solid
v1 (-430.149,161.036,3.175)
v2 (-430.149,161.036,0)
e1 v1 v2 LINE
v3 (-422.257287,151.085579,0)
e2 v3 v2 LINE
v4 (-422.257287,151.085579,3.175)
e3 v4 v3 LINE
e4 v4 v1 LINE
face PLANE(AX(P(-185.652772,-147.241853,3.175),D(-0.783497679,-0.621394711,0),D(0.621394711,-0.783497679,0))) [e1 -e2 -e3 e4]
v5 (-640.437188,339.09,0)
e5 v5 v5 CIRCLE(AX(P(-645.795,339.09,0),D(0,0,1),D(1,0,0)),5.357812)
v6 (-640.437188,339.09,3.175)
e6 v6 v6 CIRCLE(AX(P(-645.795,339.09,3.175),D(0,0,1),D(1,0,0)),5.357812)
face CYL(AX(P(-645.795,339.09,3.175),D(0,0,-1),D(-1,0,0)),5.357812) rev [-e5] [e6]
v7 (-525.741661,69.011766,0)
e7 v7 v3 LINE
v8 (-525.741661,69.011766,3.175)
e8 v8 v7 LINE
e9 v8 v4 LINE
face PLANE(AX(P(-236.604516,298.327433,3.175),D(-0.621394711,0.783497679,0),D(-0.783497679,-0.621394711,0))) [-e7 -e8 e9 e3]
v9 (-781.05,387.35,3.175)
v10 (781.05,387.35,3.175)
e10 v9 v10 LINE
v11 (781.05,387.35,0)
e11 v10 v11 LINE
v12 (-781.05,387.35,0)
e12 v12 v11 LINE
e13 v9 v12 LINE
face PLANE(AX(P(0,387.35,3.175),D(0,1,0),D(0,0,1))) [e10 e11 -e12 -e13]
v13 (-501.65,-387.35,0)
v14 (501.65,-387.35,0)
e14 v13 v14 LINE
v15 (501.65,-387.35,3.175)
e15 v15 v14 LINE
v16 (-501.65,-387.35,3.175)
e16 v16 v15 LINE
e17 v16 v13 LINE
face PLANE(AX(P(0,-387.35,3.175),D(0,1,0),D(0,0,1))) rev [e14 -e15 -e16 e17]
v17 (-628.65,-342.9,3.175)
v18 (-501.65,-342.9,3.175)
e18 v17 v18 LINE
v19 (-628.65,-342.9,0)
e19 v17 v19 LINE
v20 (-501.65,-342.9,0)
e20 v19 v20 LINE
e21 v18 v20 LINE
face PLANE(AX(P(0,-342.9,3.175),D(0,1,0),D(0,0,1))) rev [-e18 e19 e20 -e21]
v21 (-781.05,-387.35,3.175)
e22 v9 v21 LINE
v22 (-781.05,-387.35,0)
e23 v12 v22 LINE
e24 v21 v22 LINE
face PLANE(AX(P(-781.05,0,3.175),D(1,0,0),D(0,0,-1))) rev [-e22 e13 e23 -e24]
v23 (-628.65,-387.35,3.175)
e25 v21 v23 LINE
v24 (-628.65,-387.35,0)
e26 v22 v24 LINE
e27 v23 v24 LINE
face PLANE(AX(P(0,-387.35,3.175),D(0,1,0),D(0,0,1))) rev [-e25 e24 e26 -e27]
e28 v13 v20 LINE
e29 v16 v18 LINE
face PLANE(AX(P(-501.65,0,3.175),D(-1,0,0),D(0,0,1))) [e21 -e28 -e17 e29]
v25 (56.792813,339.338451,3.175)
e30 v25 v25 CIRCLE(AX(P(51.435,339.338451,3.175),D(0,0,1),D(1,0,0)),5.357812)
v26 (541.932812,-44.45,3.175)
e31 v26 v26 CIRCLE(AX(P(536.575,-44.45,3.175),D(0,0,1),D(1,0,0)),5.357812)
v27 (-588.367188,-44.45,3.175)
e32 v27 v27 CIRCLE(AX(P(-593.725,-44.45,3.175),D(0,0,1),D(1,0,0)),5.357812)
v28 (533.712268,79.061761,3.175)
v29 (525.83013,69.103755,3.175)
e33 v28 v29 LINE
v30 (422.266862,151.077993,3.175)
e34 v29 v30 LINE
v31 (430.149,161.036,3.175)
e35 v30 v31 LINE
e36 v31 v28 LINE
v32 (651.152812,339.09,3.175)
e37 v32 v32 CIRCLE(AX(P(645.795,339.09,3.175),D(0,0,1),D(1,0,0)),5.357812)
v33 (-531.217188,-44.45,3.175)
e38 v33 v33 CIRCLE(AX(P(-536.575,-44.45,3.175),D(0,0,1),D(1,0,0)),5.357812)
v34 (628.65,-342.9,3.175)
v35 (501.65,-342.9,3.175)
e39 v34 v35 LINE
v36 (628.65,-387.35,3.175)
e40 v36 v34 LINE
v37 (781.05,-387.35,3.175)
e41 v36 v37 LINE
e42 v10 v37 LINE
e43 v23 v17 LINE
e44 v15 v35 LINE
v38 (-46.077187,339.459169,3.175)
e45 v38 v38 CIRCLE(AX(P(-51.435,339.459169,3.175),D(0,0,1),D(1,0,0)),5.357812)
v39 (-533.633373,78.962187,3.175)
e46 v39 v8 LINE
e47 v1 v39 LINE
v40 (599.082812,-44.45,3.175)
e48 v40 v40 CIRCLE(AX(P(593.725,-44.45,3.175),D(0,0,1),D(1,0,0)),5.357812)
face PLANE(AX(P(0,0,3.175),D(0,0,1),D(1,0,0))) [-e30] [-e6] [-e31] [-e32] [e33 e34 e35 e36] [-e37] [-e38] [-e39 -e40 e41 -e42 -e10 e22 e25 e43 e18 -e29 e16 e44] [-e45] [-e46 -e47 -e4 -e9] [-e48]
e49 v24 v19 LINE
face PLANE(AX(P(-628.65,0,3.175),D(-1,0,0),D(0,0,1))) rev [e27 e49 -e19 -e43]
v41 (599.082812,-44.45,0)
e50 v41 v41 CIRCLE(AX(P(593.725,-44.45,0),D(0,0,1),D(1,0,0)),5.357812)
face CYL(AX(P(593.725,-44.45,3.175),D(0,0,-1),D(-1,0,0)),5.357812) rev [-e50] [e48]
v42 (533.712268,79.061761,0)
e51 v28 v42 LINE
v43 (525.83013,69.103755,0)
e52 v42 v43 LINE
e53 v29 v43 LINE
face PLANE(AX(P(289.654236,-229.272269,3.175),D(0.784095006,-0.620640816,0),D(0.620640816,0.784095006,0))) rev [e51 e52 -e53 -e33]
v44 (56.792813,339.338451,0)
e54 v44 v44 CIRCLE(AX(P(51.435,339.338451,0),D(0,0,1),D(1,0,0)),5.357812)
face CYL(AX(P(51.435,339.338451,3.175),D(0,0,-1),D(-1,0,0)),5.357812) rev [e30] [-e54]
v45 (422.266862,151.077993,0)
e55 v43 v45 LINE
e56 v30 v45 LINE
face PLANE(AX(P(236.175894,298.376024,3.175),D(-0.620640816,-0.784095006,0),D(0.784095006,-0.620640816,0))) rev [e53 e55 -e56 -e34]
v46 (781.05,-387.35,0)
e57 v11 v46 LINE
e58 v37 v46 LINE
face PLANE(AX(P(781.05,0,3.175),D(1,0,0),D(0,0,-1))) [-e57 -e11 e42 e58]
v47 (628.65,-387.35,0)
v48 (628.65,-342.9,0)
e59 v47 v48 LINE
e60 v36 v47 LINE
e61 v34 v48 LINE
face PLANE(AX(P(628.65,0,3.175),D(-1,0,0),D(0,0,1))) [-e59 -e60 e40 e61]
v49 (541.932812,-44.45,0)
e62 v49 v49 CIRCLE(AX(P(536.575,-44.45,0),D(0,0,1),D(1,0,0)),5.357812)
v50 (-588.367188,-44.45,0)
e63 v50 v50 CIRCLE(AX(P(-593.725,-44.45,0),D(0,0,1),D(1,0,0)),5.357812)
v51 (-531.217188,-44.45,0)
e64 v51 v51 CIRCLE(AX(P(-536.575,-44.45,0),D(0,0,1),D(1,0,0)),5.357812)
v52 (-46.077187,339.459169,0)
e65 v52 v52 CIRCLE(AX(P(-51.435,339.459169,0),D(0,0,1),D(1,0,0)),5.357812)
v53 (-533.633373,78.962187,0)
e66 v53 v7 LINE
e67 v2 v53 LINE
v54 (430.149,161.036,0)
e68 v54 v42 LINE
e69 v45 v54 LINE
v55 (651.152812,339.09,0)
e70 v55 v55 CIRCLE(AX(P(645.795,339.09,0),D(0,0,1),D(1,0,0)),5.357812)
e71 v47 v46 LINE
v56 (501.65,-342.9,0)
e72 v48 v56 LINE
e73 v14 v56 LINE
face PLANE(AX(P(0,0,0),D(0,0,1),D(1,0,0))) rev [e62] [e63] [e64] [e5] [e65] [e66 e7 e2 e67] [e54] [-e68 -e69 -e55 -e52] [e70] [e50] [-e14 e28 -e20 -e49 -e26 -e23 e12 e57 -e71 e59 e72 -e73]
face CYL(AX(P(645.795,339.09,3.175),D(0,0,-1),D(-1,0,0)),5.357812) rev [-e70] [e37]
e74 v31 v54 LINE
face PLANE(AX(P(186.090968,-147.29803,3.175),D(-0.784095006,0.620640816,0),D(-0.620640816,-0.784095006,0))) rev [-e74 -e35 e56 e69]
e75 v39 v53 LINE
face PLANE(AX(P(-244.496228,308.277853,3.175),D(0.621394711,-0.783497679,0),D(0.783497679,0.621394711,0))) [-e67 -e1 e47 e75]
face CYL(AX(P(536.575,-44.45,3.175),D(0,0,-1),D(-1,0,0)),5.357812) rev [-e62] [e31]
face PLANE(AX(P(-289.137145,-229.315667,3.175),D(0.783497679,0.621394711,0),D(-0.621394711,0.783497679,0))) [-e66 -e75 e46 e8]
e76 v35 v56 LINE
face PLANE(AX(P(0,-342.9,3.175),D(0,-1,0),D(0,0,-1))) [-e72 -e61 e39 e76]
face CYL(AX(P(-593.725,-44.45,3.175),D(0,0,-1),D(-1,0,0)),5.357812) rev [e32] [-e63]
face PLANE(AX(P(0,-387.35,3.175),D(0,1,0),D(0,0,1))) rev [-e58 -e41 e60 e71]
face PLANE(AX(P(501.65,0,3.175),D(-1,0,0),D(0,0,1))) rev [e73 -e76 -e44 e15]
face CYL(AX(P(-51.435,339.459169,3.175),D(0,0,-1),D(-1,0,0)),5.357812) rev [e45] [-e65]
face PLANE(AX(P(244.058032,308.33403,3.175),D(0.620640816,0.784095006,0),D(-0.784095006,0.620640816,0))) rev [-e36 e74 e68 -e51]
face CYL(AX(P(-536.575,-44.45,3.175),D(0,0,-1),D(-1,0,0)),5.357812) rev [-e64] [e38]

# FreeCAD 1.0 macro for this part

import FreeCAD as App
import Part
import Sketcher
from FreeCAD import Vector
Q = App.Units.Quantity

doc = App.newDocument("Part")
body = doc.addObject("PartDesign::Body", "Body")

sketch1 = body.newObject("Sketcher::SketchObject", "Sketch")
sketch1.AttachmentSupport = (doc.getObject("XY_Plane"), [""])
sketch1.MapMode = "FlatFace"
sketch1.addGeometry(Part.LineSegment(Vector(781, 387, 0), Vector(-781, 387, 0)), False)
sketch1.addGeometry(Part.LineSegment(Vector(-781, 387, 0), Vector(-781, -387, 0)), False)
sketch1.addGeometry(Part.LineSegment(Vector(-781, -387, 0), Vector(-629, -387, 0)), False)
sketch1.addGeometry(Part.LineSegment(Vector(-629, -387, 0), Vector(-629, -343, 0)), False)
sketch1.addGeometry(Part.LineSegment(Vector(-629, -343, 0), Vector(-502, -343, 0)), False)
sketch1.addGeometry(Part.LineSegment(Vector(-502, -343, 0), Vector(-502, -387, 0)), False)
sketch1.addGeometry(Part.LineSegment(Vector(-502, -387, 0), Vector(502, -387, 0)), False)
sketch1.addGeometry(Part.LineSegment(Vector(502, -387, 0), Vector(502, -343, 0)), False)
sketch1.addGeometry(Part.LineSegment(Vector(502, -343, 0), Vector(629, -343, 0)), False)
sketch1.addGeometry(Part.LineSegment(Vector(629, -343, 0), Vector(629, -387, 0)), False)
sketch1.addGeometry(Part.LineSegment(Vector(629, -387, 0), Vector(781, -387, 0)), False)
sketch1.addGeometry(Part.LineSegment(Vector(781, -387, 0), Vector(781, 387, 0)), False)
sketch1.addGeometry(Part.Circle(Vector(-594, -44, 0), Vector(0, 0, 1), 5), False)
sketch1.addGeometry(Part.Circle(Vector(-537, -44, 0), Vector(0, 0, 1), 5), False)
sketch1.addGeometry(Part.LineSegment(Vector(-422, 151, 0), Vector(-526, 69, 0)), False)
sketch1.addGeometry(Part.LineSegment(Vector(-526, 69, 0), Vector(-534, 79, 0)), False)
sketch1.addGeometry(Part.LineSegment(Vector(-534, 79, 0), Vector(-430, 161, 0)), False)
sketch1.addGeometry(Part.LineSegment(Vector(-430, 161, 0), Vector(-422, 151, 0)), False)
sketch1.addGeometry(Part.Circle(Vector(537, -44, 0), Vector(0, 0, 1), 5), False)
sketch1.addGeometry(Part.Circle(Vector(594, -44, 0), Vector(0, 0, 1), 5), False)
sketch1.addGeometry(Part.LineSegment(Vector(430, 161, 0), Vector(534, 79, 0)), False)
sketch1.addGeometry(Part.LineSegment(Vector(534, 79, 0), Vector(526, 69, 0)), False)
sketch1.addGeometry(Part.LineSegment(Vector(526, 69, 0), Vector(422, 151, 0)), False)
sketch1.addGeometry(Part.LineSegment(Vector(422, 151, 0), Vector(430, 161, 0)), False)
sketch1.addGeometry(Part.Circle(Vector(-646, 339, 0), Vector(0, 0, 1), 5), False)
sketch1.addGeometry(Part.Circle(Vector(-51, 339, 0), Vector(0, 0, 1), 5), False)
sketch1.addGeometry(Part.Circle(Vector(51, 339, 0), Vector(0, 0, 1), 5), False)
sketch1.addGeometry(Part.Circle(Vector(646, 339, 0), Vector(0, 0, 1), 5), False)
sketch1.addConstraint(Sketcher.Constraint("Coincident", 0, 2, 1, 1))
sketch1.addConstraint(Sketcher.Constraint("Coincident", 1, 2, 2, 1))
sketch1.addConstraint(Sketcher.Constraint("Coincident", 2, 2, 3, 1))
sketch1.addConstraint(Sketcher.Constraint("Coincident", 3, 2, 4, 1))
sketch1.addConstraint(Sketcher.Constraint("Coincident", 4, 2, 5, 1))
sketch1.addConstraint(Sketcher.Constraint("Coincident", 5, 2, 6, 1))
sketch1.addConstraint(Sketcher.Constraint("Coincident", 6, 2, 7, 1))
sketch1.addConstraint(Sketcher.Constraint("Coincident", 7, 2, 8, 1))
sketch1.addConstraint(Sketcher.Constraint("Coincident", 8, 2, 9, 1))
sketch1.addConstraint(Sketcher.Constraint("Coincident", 9, 2, 10, 1))
sketch1.addConstraint(Sketcher.Constraint("Coincident", 10, 2, 11, 1))
sketch1.addConstraint(Sketcher.Constraint("Coincident", 11, 2, 0, 1))
sketch1.addConstraint(Sketcher.Constraint("Coincident", 14, 2, 15, 1))
sketch1.addConstraint(Sketcher.Constraint("Coincident", 15, 2, 16, 1))
sketch1.addConstraint(Sketcher.Constraint("Coincident", 16, 2, 17, 1))
sketch1.addConstraint(Sketcher.Constraint("Coincident", 17, 2, 14, 1))
sketch1.addConstraint(Sketcher.Constraint("Coincident", 20, 2, 21, 1))
sketch1.addConstraint(Sketcher.Constraint("Coincident", 21, 2, 22, 1))
sketch1.addConstraint(Sketcher.Constraint("Coincident", 22, 2, 23, 1))
sketch1.addConstraint(Sketcher.Constraint("Coincident", 23, 2, 20, 1))
sketch1.addConstraint(Sketcher.Constraint("Horizontal", 0))
sketch1.addConstraint(Sketcher.Constraint("Vertical", 1))
sketch1.addConstraint(Sketcher.Constraint("Horizontal", 2))
sketch1.addConstraint(Sketcher.Constraint("Vertical", 3))
sketch1.addConstraint(Sketcher.Constraint("Horizontal", 4))
sketch1.addConstraint(Sketcher.Constraint("Vertical", 5))
sketch1.addConstraint(Sketcher.Constraint("Horizontal", 6))
sketch1.addConstraint(Sketcher.Constraint("Vertical", 7))
sketch1.addConstraint(Sketcher.Constraint("Horizontal", 8))
sketch1.addConstraint(Sketcher.Constraint("Vertical", 9))
sketch1.addConstraint(Sketcher.Constraint("Horizontal", 10))
sketch1.addConstraint(Sketcher.Constraint("Vertical", 11))
sketch1.addConstraint(Sketcher.Constraint("Equal", 12, 13))
sketch1.addConstraint(Sketcher.Constraint("Equal", 13, 18))
sketch1.addConstraint(Sketcher.Constraint("Equal", 18, 19))
sketch1.addConstraint(Sketcher.Constraint("Equal", 19, 24))
sketch1.addConstraint(Sketcher.Constraint("Equal", 24, 25))
sketch1.addConstraint(Sketcher.Constraint("Equal", 25, 26))
sketch1.addConstraint(Sketcher.Constraint("Equal", 26, 27))
sketch1.addConstraint(Sketcher.Constraint("Symmetric", 0, 2, 10, 2, -1, 1))
sketch1.addConstraint(Sketcher.Constraint("Symmetric", 13, 3, 18, 3, -2))
sketch1.addConstraint(Sketcher.Constraint("Symmetric", 12, 3, 19, 3, -2))
sketch1.addConstraint(Sketcher.Constraint("Symmetric", 24, 3, 27, 3, -2))
sketch1.addConstraint(Sketcher.Constraint("Symmetric", 4, 2, 7, 2, -2))
sketch1.addConstraint(Sketcher.Constraint("Symmetric", 2, 2, 9, 2, -2))
sketch1.addConstraint(Sketcher.Constraint("Symmetric", 16, 2, 23, 2, -2))
sketch1.addConstraint(Sketcher.Constraint("Perpendicular", 14, 15))
sketch1.addConstraint(Sketcher.Constraint("Perpendicular", 15, 16))
sketch1.addConstraint(Sketcher.Constraint("Perpendicular", 16, 17))
sketch1.addConstraint(Sketcher.Constraint("Perpendicular", 20, 21))
sketch1.addConstraint(Sketcher.Constraint("Perpendicular", 21, 22))
sketch1.addConstraint(Sketcher.Constraint("Perpendicular", 22, 23))
sketch1.addConstraint(Sketcher.Constraint("Horizontal", 12, 3, 13, 3))
sketch1.addConstraint(Sketcher.Constraint("Horizontal", 2, 2, 5, 2))
sketch1.addConstraint(Sketcher.Constraint("Equal", 16, 20))
sketch1.addConstraint(Sketcher.Constraint("Equal", 17, 21))
sketch1.addConstraint(Sketcher.Constraint("DistanceX", 2, 1, 2, 2, Q("6 in")))
sketch1.addConstraint(Sketcher.Constraint("DistanceX", 4, 1, 4, 2, Q("5 in")))
sketch1.addConstraint(Sketcher.Constraint("Diameter", 12, Q("0.421875 in")))
sketch1.addConstraint(Sketcher.Constraint("DistanceX", 0, 2, 0, 1, Q("61.5 in")))
sketch1.addConstraint(Sketcher.Constraint("DistanceY", 1, 2, 1, 1, Q("30.5 in")))
sketch1.addConstraint(Sketcher.Constraint("DistanceY", 12, 3, 0, 2, Q("17 in")))
sketch1.addConstraint(Sketcher.Constraint("Distance", 14, Q("5.2 in")))
sketch1.addConstraint(Sketcher.Constraint("Distance", 15, Q("0.5 in")))
sketch1.addConstraint(Sketcher.Constraint("DistanceY", 3, 1, 3, 2, Q("1.75 in")))
sketch1.addConstraint(Sketcher.Constraint("DistanceX", 12, 3, 18, 3, Q("44.5 in")))
sketch1.addConstraint(Sketcher.Constraint("DistanceY", 12, 3, 24, 3, Q("15.1 in")))
sketch1.addConstraint(Sketcher.Constraint("DistanceX", 24, 3, 13, 3, Q("4.3 in")))
sketch1.addConstraint(Sketcher.Constraint("DistanceX", 24, 3, 25, 3, Q("23.4 in")))
sketch1.addConstraint(Sketcher.Constraint("DistanceX", 26, 3, 18, 3, Q("19.1 in")))
sketch1.addConstraint(Sketcher.Constraint("DistanceY", -1, 1, 16, 2, Q("6.34 in")))
sketch1.addConstraint(Sketcher.Constraint("DistanceX", 12, 3, 13, 3, Q("2.25 in")))
sketch1.addConstraint(Sketcher.Constraint("DistanceX", 13, 3, 16, 2, Q("4.19 in")))
sketch1.addConstraint(Sketcher.Constraint("DistanceY", -1, 1, 25, 3, 339.459169))
sketch1.addConstraint(Sketcher.Constraint("DistanceY", -1, 1, 26, 3, 339.338451))
sketch1.addConstraint(Sketcher.Constraint("DistanceX", 14, 2, -1, 1, 525.741661))
sketch1.addConstraint(Sketcher.Constraint("DistanceX", -1, 1, 20, 2, 533.712268))
pad1 = body.newObject("PartDesign::Pad", "Pad")
pad1.Profile = sketch1
pad1.Length = Q("0.125 in")

doc.recompute()
